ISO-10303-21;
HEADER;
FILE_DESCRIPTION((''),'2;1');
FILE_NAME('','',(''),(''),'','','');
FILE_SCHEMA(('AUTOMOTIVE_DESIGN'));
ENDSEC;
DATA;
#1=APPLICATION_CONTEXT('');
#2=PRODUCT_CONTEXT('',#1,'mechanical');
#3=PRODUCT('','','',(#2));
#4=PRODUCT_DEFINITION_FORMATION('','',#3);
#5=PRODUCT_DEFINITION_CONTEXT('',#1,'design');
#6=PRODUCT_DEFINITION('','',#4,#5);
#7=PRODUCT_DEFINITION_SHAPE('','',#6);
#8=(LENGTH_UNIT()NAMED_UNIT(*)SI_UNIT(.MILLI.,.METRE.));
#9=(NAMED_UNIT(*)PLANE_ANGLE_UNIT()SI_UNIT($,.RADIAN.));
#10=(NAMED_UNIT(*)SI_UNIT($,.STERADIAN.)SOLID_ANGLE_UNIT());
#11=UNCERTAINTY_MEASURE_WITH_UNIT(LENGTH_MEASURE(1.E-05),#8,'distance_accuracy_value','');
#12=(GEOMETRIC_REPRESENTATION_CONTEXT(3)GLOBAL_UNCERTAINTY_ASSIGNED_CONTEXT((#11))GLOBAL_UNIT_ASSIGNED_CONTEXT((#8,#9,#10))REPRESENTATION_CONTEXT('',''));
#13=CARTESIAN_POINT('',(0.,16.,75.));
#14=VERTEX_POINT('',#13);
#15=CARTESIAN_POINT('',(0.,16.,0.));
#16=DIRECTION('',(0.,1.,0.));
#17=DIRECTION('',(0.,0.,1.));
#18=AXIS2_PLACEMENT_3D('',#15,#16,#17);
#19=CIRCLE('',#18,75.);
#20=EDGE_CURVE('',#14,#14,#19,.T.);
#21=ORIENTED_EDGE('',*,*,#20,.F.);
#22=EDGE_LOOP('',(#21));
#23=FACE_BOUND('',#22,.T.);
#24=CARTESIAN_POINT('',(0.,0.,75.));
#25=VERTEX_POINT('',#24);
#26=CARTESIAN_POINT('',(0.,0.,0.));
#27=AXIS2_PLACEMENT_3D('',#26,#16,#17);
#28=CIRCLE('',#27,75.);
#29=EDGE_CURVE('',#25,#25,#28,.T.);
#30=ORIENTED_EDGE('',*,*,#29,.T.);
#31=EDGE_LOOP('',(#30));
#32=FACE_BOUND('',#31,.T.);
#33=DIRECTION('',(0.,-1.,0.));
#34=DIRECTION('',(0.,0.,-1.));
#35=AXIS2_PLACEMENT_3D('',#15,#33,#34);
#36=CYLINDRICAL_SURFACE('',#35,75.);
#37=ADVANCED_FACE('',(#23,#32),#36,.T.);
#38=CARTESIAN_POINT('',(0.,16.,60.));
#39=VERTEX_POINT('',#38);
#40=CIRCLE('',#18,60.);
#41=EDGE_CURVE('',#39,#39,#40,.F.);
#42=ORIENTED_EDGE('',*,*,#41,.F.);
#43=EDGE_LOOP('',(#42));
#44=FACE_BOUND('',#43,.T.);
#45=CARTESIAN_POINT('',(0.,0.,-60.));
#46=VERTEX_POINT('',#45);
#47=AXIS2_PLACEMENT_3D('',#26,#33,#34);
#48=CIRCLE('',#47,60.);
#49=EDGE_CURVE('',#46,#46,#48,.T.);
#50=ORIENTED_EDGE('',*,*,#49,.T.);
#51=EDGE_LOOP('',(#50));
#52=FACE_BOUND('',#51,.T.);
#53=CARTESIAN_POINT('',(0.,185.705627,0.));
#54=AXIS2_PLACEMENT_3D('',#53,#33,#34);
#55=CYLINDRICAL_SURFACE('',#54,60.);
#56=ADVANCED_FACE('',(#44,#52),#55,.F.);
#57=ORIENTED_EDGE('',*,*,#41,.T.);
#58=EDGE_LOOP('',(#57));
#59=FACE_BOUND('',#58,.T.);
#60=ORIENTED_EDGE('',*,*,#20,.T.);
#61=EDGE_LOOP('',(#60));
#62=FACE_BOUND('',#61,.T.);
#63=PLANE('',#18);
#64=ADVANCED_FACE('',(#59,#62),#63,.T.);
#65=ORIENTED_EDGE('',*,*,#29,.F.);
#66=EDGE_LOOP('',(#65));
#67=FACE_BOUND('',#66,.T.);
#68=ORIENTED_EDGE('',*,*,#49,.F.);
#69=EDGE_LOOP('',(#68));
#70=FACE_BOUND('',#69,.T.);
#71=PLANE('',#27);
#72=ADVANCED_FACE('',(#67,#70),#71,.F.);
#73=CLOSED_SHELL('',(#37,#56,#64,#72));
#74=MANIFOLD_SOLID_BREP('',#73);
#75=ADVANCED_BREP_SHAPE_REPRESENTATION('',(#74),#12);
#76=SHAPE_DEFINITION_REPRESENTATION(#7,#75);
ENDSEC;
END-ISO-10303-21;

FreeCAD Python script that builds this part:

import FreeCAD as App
import Part
import Sketcher

V = App.Vector

doc = App.newDocument("Part")
body = doc.addObject("PartDesign::Body", "Body")

# Sketch on XZ plane
sketch1 = body.newObject("Sketcher::SketchObject", "Sketch")
sketch1.AttachmentSupport = (doc.getObject("XZ_Plane"), [""])
sketch1.MapMode = "FlatFace"
sketch1.addGeometry(Part.Circle(V(0, 0, 0), V(0, 0, 1), 75), False)
sketch1.addConstraint(Sketcher.Constraint("Coincident", 0, 3, -1, 1))
sketch1.addConstraint(Sketcher.Constraint("Diameter", 0, 150.0))
pad1 = body.newObject("PartDesign::Pad", "Pad")
pad1.Profile = sketch1
pad1.Length = 16
pad1.Reversed = True

# Sketch on XZ plane
sketch2 = body.newObject("Sketcher::SketchObject", "Sketch001")
sketch2.AttachmentSupport = (doc.getObject("XZ_Plane"), [""])
sketch2.MapMode = "FlatFace"
sketch2.addGeometry(Part.Circle(V(0, 0, 0), V(0, 0, 1), 60), False)
sketch2.addConstraint(Sketcher.Constraint("Coincident", 0, 3, -1, 1))
sketch2.addConstraint(Sketcher.Constraint("Diameter", 0, 120.0))
pocket1 = body.newObject("PartDesign::Pocket", "Pocket")
pocket1.Profile = sketch2
pocket1.Length = 16

doc.recompute()
